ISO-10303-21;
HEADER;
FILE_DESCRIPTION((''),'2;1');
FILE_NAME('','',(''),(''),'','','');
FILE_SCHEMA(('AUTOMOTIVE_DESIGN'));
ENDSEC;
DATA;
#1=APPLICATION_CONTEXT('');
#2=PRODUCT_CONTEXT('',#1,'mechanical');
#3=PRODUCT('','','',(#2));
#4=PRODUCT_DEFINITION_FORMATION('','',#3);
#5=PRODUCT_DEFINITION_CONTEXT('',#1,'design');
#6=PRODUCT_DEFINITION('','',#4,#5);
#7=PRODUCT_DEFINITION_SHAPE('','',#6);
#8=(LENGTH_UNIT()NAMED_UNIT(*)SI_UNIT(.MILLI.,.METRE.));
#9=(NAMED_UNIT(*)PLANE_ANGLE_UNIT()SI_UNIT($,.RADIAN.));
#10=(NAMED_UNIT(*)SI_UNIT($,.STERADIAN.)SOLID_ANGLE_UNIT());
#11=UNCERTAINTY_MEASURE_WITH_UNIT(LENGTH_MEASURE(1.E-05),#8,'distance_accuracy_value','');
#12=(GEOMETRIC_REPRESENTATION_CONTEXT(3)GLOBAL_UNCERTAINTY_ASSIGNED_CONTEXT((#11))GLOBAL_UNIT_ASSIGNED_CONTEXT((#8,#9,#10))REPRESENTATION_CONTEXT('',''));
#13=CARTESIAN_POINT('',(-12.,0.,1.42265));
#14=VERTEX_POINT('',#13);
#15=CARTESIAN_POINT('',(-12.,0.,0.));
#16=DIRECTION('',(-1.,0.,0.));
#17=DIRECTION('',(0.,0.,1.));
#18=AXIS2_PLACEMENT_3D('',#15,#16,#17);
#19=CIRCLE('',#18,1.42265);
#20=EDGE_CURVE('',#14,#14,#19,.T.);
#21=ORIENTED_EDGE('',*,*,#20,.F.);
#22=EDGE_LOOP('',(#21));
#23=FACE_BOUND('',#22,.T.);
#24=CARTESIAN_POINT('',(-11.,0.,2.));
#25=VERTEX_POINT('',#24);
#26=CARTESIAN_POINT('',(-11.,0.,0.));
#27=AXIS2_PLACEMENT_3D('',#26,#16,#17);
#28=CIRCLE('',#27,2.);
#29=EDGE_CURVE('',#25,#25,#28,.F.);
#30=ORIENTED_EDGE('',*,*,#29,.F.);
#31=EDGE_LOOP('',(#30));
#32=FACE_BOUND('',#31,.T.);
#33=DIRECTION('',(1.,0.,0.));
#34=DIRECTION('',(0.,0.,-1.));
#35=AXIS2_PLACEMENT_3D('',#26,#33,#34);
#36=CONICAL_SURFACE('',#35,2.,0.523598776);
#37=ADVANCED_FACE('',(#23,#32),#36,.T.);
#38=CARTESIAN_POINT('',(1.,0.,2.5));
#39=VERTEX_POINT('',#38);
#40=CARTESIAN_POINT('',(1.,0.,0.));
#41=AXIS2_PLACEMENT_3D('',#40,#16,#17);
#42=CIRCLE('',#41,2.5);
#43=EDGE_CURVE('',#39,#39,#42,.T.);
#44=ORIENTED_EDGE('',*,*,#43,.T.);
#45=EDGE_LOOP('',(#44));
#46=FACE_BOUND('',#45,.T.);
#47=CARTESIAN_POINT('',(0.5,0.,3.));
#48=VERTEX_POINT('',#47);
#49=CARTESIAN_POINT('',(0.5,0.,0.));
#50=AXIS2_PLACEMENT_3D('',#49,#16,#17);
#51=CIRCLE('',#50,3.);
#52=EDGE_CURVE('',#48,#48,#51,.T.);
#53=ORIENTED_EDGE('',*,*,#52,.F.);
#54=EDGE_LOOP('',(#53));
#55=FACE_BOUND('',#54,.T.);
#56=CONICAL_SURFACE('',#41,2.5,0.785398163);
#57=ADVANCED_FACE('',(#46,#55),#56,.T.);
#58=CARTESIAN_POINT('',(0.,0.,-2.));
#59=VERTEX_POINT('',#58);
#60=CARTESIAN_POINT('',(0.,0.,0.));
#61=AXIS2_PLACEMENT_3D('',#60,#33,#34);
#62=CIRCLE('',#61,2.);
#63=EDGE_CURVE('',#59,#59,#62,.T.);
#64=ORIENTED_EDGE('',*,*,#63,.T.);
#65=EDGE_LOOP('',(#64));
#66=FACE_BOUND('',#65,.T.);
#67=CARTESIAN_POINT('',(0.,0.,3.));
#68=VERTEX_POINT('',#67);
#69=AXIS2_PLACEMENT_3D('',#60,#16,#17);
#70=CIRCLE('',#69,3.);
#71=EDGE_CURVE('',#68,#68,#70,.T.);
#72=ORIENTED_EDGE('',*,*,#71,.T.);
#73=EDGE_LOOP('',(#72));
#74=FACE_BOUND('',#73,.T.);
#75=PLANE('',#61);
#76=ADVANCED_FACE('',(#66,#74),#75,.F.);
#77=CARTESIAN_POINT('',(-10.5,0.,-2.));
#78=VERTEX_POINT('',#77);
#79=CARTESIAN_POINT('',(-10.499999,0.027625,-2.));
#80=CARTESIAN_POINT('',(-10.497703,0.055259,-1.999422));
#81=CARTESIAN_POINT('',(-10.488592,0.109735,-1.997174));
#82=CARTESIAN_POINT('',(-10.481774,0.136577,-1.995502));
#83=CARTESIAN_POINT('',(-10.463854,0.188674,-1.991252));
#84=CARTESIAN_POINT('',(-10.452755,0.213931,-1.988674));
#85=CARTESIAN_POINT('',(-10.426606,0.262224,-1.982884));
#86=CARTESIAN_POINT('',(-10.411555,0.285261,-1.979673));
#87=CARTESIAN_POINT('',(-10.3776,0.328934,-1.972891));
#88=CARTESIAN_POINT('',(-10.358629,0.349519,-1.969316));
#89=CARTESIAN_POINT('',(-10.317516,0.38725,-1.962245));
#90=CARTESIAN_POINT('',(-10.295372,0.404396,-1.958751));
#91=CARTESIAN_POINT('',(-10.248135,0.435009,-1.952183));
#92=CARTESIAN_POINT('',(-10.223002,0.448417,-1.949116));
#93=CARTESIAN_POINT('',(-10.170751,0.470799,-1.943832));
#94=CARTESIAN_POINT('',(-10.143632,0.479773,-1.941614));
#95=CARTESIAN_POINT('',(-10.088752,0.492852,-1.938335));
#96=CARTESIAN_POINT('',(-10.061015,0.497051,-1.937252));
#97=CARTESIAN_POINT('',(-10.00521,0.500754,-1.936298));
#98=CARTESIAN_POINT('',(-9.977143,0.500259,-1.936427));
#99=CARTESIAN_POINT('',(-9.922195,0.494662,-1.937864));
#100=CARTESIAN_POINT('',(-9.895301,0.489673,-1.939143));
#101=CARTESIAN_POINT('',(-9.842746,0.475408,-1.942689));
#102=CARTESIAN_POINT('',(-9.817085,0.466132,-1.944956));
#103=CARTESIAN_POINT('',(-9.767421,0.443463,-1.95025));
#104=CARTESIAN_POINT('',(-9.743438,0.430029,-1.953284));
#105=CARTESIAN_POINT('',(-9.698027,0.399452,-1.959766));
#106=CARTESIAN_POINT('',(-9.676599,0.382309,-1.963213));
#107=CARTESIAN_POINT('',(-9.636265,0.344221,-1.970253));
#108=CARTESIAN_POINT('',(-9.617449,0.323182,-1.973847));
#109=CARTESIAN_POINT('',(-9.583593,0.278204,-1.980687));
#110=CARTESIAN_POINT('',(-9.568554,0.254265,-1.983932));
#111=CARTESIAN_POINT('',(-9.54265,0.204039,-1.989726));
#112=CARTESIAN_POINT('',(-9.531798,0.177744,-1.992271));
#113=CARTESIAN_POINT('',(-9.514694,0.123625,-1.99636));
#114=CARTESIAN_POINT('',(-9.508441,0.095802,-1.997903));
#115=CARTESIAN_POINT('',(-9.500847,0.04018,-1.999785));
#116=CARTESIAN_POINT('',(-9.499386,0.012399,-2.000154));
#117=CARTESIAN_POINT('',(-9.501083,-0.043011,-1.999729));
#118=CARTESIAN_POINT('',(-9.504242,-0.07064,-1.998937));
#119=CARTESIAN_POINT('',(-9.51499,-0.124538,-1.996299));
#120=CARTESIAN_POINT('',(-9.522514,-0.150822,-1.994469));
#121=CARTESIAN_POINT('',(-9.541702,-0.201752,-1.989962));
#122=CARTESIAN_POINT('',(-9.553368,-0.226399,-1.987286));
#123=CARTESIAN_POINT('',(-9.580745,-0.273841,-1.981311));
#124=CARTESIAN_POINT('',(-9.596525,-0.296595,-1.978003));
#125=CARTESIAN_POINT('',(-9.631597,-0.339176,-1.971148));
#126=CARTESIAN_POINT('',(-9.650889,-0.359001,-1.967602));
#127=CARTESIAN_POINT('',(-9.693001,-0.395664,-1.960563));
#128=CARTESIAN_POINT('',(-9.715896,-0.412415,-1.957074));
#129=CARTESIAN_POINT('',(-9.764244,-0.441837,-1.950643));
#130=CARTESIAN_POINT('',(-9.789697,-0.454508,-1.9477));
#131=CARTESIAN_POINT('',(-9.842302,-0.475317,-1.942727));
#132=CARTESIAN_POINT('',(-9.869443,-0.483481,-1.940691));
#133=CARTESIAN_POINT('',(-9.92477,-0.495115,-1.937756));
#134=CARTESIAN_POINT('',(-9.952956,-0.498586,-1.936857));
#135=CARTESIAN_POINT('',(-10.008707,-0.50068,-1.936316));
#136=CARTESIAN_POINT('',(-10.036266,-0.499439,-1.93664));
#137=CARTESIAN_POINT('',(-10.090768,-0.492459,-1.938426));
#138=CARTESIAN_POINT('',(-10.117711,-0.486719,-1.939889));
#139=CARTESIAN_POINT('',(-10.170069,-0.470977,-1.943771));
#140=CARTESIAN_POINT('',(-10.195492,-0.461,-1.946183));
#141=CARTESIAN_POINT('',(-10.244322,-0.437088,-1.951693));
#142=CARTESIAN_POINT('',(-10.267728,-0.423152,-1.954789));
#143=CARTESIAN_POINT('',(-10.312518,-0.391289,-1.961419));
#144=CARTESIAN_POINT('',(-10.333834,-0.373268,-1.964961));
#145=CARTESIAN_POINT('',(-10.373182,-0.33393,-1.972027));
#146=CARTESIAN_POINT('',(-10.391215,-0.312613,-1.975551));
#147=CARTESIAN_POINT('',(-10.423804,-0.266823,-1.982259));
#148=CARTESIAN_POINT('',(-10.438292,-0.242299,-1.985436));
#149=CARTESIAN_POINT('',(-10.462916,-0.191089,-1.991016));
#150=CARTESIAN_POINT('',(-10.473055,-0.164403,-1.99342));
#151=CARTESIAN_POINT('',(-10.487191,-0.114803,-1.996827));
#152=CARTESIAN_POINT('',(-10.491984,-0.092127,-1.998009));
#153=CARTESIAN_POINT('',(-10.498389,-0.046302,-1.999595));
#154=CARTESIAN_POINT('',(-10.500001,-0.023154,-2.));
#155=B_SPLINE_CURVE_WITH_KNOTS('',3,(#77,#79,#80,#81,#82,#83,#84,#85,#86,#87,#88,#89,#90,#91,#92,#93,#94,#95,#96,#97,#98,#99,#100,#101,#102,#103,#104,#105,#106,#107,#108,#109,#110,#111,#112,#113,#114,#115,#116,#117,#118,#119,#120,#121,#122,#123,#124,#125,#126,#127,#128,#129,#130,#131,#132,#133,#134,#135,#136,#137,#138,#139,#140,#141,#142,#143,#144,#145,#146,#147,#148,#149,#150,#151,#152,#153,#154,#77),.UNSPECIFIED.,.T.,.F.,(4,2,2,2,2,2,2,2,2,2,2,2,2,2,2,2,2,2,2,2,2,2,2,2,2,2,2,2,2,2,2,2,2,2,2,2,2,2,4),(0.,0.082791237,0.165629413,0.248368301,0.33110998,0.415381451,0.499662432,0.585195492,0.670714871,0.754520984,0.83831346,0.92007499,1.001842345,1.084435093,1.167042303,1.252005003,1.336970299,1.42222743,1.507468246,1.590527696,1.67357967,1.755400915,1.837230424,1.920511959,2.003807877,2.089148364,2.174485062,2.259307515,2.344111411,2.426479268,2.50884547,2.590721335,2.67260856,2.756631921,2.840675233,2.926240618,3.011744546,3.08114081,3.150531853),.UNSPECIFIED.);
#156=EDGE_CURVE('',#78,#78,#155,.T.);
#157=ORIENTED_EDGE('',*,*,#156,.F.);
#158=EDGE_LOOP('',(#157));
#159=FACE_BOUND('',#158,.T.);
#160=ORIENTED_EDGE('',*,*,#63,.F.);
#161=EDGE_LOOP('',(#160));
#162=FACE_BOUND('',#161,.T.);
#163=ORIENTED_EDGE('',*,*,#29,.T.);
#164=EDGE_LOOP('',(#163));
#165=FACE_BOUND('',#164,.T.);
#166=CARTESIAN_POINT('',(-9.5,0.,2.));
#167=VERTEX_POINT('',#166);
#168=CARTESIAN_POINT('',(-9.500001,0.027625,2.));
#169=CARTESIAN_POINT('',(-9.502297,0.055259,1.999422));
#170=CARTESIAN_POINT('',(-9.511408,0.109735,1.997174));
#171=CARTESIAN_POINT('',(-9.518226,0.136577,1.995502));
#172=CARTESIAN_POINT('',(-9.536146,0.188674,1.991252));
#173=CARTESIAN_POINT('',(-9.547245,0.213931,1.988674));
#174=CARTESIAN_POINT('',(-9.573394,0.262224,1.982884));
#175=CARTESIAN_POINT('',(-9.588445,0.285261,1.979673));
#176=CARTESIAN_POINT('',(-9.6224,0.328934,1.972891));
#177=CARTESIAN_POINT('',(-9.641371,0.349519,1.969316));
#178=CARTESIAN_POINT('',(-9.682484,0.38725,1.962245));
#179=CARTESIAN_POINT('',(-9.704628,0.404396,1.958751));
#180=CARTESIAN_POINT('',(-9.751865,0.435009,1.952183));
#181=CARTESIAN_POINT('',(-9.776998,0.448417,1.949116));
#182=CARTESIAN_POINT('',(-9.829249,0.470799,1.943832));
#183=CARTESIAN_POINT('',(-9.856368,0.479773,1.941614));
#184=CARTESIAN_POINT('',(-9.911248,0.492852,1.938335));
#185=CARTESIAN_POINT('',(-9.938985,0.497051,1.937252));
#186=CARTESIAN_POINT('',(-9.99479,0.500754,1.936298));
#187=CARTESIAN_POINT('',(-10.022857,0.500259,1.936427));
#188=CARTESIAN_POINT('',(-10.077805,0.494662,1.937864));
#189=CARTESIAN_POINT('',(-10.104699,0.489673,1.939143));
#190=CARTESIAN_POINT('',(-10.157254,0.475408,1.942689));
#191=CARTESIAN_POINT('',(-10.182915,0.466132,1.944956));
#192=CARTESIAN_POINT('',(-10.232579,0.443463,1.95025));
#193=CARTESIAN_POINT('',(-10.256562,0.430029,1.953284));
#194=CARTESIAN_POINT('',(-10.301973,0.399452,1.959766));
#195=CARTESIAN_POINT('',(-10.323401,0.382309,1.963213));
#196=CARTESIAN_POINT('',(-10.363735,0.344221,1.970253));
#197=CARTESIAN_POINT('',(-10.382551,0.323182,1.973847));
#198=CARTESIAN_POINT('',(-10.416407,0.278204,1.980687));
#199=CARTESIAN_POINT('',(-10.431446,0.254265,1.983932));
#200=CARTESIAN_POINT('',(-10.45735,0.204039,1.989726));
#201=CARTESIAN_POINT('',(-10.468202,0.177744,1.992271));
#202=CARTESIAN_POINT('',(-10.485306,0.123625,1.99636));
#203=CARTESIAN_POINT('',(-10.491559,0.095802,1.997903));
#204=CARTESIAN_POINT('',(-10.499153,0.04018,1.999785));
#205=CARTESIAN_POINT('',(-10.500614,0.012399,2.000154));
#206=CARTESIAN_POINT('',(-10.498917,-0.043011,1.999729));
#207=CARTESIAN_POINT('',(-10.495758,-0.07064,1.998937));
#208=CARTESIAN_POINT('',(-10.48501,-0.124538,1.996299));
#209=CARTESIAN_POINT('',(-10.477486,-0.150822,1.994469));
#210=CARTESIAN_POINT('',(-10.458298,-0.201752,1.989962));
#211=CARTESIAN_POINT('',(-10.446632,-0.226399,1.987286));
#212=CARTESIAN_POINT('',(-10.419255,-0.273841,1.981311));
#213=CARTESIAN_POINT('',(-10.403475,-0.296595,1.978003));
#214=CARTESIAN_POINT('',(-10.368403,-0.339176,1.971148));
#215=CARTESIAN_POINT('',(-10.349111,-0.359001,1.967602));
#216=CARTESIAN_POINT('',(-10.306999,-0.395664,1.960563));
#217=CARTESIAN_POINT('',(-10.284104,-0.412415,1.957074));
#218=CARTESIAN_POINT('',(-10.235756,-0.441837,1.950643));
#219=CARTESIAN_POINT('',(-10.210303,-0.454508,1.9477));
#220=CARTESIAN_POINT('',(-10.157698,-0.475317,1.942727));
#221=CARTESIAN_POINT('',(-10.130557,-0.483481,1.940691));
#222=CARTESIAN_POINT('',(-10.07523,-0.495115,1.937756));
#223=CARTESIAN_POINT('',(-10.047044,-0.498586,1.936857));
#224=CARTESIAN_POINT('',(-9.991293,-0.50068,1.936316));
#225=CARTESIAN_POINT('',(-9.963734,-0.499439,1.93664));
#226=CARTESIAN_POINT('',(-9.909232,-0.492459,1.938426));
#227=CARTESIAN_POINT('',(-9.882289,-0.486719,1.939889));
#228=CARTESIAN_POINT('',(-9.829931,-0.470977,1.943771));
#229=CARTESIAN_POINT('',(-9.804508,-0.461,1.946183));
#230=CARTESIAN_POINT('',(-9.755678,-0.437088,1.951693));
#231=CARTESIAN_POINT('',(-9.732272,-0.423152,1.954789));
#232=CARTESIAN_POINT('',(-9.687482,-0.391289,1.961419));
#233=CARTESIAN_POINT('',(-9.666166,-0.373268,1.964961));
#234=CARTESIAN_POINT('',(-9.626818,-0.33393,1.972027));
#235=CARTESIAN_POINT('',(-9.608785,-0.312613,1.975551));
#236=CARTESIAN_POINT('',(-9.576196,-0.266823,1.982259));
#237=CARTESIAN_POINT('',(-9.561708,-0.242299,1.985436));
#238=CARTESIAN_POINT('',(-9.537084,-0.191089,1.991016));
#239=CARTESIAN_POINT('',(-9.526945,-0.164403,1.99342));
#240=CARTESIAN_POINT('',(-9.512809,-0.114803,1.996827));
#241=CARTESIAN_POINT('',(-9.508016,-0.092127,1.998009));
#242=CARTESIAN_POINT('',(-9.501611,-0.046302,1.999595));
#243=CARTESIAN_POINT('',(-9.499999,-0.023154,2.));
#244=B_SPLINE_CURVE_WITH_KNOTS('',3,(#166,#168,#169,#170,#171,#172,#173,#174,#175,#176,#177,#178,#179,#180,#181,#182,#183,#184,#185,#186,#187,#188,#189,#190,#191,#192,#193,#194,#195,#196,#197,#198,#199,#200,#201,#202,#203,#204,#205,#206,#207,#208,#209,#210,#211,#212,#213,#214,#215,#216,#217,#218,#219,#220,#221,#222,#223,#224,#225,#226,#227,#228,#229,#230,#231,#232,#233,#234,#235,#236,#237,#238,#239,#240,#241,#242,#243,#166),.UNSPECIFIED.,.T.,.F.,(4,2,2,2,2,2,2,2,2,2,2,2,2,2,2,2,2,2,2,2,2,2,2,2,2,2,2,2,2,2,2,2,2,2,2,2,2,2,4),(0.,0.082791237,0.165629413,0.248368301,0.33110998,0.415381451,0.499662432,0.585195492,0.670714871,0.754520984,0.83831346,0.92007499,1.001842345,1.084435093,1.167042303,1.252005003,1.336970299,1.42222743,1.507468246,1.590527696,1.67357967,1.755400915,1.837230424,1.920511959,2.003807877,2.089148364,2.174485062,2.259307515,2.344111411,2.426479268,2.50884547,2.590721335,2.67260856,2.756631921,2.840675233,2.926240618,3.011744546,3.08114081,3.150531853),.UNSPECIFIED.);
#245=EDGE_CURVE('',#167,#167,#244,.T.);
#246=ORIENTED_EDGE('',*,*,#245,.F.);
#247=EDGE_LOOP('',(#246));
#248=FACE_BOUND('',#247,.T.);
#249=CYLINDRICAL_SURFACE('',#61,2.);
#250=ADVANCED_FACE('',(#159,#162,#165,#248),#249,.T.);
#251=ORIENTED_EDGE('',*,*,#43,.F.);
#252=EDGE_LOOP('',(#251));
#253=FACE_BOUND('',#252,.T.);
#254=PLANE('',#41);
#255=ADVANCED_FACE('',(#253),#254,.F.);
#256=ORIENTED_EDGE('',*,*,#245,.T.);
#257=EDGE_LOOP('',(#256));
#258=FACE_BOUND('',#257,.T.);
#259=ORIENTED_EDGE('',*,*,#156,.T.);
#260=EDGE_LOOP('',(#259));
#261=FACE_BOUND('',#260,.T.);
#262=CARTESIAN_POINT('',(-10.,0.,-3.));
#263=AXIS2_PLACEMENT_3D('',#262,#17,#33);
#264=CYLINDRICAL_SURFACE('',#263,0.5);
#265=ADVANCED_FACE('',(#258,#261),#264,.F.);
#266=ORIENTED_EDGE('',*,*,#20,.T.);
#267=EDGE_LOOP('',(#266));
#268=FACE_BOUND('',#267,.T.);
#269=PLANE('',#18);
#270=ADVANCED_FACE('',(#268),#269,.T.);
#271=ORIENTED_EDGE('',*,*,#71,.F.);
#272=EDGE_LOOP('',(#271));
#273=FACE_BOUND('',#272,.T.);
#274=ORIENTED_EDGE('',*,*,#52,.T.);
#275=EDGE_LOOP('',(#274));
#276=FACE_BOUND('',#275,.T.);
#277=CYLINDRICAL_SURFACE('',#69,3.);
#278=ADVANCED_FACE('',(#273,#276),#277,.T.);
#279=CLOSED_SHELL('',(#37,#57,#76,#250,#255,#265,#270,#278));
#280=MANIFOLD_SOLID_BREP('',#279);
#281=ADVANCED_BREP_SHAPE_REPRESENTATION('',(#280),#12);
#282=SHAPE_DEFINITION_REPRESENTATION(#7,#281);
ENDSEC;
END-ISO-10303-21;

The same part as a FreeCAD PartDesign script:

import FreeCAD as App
import Part
import Sketcher

V = App.Vector
Q = App.Units.Quantity


def edges_at(feature, points):
    """Names of the edges that pass closest to the given points."""
    edges = feature.Shape.Edges
    near = lambda p: min(range(len(edges)), key=lambda i: edges[i].distToShape(Part.Vertex(*p))[0])
    return sorted({f"Edge{near(p) + 1}" for p in points})


def add_polygon(sketch, points):
    """Adds a closed chain of lines whose ends are joined by coincident constraints."""
    first, n = sketch.GeometryCount, len(points)
    for a, b in zip(points, points[1:] + points[:1]):
        sketch.addGeometry(Part.LineSegment(App.Vector(*a, 0), App.Vector(*b, 0)), False)
    for i in range(n):
        sketch.addConstraint(Sketcher.Constraint("Coincident", first + i, 2, first + (i + 1) % n, 1))

doc = App.newDocument("Part")
body = doc.addObject("PartDesign::Body", "Body")

sketch1 = doc.addObject("Sketcher::SketchObject", "Sketch")
body.addObject(sketch1)
sketch1.AttachmentSupport = (doc.XY_Plane, [""])
sketch1.MapMode = "FlatFace"
add_polygon(sketch1, [(-12, 2), (-12, 0), (0, 0), (0, 2)])
sketch1.addConstraint([
    Sketcher.Constraint("Vertical", 0),
    Sketcher.Constraint("Horizontal", 1),
    Sketcher.Constraint("Vertical", 2),
    Sketcher.Constraint("Horizontal", 3),
    Sketcher.Constraint("Coincident", 1, 2, -1, 1),
    Sketcher.Constraint("DistanceX", 1, 1, 1, 2, Q("12 mm")),
    Sketcher.Constraint("DistanceY", 0, 2, 0, 1, Q("2 mm")),
])
revolution = doc.addObject("PartDesign::Revolution", "Revolution")
body.addObject(revolution)
revolution.Profile = sketch1
revolution.ReferenceAxis = (sketch1, ["H_Axis"])
revolution.Angle = 360

sketch2 = doc.addObject("Sketcher::SketchObject", "Sketch001")
body.addObject(sketch2)
sketch2.AttachmentSupport = (doc.XY_Plane, [""])
sketch2.MapMode = "FlatFace"
add_polygon(sketch2, [(0, 0), (1, 0), (1, 2.5), (0.5, 3), (0, 3)])
sketch2.addConstraint([
    Sketcher.Constraint("Horizontal", 0),
    Sketcher.Constraint("Vertical", 1),
    Sketcher.Constraint("Horizontal", 3),
    Sketcher.Constraint("Vertical", 4),
    Sketcher.Constraint("Coincident", 4, 2, -1, 1),
    Sketcher.Constraint("DistanceX", 0, 1, 0, 2, Q("1 mm")),
    Sketcher.Constraint("DistanceY", 4, 2, 4, 1, Q("3 mm")),
    Sketcher.Constraint("Angle", 2, Q("135 deg")),
    Sketcher.Constraint("DistanceX", 3, 2, 3, 1, Q("0.5 mm")),
])
revolution2 = doc.addObject("PartDesign::Revolution", "Revolution001")
body.addObject(revolution2)
revolution2.Profile = sketch2
revolution2.ReferenceAxis = (sketch2, ["H_Axis"])
revolution2.Angle = 360
doc.recompute()

chamfer = doc.addObject("PartDesign::Chamfer", "Chamfer")
body.addObject(chamfer)
chamfer.Base = (revolution2, edges_at(revolution2, [(-12, -2, 0)]))
chamfer.ChamferType = "Two distances"
chamfer.Size = 1
chamfer.Size2 = 0.57735

sketch3 = doc.addObject("Sketcher::SketchObject", "Sketch002")
body.addObject(sketch3)
sketch3.AttachmentSupport = (doc.XY_Plane, [""])
sketch3.MapMode = "FlatFace"
sketch3.addGeometry(Part.Circle(V(-10, 0, 0), V(0, 0, 1), 0.5), False)
sketch3.addConstraint([
    Sketcher.Constraint("PointOnObject", 0, 3, -1),
    Sketcher.Constraint("Diameter", 0, Q("1 mm")),
    Sketcher.Constraint("DistanceX", 0, 3, -1, 1, Q("10 mm")),
])
pocket1 = doc.addObject("PartDesign::Pocket", "Pocket")
body.addObject(pocket1)
pocket1.Profile = sketch3
pocket1.Type = "ThroughAll"
pocket1.Midplane = True

doc.recompute()
